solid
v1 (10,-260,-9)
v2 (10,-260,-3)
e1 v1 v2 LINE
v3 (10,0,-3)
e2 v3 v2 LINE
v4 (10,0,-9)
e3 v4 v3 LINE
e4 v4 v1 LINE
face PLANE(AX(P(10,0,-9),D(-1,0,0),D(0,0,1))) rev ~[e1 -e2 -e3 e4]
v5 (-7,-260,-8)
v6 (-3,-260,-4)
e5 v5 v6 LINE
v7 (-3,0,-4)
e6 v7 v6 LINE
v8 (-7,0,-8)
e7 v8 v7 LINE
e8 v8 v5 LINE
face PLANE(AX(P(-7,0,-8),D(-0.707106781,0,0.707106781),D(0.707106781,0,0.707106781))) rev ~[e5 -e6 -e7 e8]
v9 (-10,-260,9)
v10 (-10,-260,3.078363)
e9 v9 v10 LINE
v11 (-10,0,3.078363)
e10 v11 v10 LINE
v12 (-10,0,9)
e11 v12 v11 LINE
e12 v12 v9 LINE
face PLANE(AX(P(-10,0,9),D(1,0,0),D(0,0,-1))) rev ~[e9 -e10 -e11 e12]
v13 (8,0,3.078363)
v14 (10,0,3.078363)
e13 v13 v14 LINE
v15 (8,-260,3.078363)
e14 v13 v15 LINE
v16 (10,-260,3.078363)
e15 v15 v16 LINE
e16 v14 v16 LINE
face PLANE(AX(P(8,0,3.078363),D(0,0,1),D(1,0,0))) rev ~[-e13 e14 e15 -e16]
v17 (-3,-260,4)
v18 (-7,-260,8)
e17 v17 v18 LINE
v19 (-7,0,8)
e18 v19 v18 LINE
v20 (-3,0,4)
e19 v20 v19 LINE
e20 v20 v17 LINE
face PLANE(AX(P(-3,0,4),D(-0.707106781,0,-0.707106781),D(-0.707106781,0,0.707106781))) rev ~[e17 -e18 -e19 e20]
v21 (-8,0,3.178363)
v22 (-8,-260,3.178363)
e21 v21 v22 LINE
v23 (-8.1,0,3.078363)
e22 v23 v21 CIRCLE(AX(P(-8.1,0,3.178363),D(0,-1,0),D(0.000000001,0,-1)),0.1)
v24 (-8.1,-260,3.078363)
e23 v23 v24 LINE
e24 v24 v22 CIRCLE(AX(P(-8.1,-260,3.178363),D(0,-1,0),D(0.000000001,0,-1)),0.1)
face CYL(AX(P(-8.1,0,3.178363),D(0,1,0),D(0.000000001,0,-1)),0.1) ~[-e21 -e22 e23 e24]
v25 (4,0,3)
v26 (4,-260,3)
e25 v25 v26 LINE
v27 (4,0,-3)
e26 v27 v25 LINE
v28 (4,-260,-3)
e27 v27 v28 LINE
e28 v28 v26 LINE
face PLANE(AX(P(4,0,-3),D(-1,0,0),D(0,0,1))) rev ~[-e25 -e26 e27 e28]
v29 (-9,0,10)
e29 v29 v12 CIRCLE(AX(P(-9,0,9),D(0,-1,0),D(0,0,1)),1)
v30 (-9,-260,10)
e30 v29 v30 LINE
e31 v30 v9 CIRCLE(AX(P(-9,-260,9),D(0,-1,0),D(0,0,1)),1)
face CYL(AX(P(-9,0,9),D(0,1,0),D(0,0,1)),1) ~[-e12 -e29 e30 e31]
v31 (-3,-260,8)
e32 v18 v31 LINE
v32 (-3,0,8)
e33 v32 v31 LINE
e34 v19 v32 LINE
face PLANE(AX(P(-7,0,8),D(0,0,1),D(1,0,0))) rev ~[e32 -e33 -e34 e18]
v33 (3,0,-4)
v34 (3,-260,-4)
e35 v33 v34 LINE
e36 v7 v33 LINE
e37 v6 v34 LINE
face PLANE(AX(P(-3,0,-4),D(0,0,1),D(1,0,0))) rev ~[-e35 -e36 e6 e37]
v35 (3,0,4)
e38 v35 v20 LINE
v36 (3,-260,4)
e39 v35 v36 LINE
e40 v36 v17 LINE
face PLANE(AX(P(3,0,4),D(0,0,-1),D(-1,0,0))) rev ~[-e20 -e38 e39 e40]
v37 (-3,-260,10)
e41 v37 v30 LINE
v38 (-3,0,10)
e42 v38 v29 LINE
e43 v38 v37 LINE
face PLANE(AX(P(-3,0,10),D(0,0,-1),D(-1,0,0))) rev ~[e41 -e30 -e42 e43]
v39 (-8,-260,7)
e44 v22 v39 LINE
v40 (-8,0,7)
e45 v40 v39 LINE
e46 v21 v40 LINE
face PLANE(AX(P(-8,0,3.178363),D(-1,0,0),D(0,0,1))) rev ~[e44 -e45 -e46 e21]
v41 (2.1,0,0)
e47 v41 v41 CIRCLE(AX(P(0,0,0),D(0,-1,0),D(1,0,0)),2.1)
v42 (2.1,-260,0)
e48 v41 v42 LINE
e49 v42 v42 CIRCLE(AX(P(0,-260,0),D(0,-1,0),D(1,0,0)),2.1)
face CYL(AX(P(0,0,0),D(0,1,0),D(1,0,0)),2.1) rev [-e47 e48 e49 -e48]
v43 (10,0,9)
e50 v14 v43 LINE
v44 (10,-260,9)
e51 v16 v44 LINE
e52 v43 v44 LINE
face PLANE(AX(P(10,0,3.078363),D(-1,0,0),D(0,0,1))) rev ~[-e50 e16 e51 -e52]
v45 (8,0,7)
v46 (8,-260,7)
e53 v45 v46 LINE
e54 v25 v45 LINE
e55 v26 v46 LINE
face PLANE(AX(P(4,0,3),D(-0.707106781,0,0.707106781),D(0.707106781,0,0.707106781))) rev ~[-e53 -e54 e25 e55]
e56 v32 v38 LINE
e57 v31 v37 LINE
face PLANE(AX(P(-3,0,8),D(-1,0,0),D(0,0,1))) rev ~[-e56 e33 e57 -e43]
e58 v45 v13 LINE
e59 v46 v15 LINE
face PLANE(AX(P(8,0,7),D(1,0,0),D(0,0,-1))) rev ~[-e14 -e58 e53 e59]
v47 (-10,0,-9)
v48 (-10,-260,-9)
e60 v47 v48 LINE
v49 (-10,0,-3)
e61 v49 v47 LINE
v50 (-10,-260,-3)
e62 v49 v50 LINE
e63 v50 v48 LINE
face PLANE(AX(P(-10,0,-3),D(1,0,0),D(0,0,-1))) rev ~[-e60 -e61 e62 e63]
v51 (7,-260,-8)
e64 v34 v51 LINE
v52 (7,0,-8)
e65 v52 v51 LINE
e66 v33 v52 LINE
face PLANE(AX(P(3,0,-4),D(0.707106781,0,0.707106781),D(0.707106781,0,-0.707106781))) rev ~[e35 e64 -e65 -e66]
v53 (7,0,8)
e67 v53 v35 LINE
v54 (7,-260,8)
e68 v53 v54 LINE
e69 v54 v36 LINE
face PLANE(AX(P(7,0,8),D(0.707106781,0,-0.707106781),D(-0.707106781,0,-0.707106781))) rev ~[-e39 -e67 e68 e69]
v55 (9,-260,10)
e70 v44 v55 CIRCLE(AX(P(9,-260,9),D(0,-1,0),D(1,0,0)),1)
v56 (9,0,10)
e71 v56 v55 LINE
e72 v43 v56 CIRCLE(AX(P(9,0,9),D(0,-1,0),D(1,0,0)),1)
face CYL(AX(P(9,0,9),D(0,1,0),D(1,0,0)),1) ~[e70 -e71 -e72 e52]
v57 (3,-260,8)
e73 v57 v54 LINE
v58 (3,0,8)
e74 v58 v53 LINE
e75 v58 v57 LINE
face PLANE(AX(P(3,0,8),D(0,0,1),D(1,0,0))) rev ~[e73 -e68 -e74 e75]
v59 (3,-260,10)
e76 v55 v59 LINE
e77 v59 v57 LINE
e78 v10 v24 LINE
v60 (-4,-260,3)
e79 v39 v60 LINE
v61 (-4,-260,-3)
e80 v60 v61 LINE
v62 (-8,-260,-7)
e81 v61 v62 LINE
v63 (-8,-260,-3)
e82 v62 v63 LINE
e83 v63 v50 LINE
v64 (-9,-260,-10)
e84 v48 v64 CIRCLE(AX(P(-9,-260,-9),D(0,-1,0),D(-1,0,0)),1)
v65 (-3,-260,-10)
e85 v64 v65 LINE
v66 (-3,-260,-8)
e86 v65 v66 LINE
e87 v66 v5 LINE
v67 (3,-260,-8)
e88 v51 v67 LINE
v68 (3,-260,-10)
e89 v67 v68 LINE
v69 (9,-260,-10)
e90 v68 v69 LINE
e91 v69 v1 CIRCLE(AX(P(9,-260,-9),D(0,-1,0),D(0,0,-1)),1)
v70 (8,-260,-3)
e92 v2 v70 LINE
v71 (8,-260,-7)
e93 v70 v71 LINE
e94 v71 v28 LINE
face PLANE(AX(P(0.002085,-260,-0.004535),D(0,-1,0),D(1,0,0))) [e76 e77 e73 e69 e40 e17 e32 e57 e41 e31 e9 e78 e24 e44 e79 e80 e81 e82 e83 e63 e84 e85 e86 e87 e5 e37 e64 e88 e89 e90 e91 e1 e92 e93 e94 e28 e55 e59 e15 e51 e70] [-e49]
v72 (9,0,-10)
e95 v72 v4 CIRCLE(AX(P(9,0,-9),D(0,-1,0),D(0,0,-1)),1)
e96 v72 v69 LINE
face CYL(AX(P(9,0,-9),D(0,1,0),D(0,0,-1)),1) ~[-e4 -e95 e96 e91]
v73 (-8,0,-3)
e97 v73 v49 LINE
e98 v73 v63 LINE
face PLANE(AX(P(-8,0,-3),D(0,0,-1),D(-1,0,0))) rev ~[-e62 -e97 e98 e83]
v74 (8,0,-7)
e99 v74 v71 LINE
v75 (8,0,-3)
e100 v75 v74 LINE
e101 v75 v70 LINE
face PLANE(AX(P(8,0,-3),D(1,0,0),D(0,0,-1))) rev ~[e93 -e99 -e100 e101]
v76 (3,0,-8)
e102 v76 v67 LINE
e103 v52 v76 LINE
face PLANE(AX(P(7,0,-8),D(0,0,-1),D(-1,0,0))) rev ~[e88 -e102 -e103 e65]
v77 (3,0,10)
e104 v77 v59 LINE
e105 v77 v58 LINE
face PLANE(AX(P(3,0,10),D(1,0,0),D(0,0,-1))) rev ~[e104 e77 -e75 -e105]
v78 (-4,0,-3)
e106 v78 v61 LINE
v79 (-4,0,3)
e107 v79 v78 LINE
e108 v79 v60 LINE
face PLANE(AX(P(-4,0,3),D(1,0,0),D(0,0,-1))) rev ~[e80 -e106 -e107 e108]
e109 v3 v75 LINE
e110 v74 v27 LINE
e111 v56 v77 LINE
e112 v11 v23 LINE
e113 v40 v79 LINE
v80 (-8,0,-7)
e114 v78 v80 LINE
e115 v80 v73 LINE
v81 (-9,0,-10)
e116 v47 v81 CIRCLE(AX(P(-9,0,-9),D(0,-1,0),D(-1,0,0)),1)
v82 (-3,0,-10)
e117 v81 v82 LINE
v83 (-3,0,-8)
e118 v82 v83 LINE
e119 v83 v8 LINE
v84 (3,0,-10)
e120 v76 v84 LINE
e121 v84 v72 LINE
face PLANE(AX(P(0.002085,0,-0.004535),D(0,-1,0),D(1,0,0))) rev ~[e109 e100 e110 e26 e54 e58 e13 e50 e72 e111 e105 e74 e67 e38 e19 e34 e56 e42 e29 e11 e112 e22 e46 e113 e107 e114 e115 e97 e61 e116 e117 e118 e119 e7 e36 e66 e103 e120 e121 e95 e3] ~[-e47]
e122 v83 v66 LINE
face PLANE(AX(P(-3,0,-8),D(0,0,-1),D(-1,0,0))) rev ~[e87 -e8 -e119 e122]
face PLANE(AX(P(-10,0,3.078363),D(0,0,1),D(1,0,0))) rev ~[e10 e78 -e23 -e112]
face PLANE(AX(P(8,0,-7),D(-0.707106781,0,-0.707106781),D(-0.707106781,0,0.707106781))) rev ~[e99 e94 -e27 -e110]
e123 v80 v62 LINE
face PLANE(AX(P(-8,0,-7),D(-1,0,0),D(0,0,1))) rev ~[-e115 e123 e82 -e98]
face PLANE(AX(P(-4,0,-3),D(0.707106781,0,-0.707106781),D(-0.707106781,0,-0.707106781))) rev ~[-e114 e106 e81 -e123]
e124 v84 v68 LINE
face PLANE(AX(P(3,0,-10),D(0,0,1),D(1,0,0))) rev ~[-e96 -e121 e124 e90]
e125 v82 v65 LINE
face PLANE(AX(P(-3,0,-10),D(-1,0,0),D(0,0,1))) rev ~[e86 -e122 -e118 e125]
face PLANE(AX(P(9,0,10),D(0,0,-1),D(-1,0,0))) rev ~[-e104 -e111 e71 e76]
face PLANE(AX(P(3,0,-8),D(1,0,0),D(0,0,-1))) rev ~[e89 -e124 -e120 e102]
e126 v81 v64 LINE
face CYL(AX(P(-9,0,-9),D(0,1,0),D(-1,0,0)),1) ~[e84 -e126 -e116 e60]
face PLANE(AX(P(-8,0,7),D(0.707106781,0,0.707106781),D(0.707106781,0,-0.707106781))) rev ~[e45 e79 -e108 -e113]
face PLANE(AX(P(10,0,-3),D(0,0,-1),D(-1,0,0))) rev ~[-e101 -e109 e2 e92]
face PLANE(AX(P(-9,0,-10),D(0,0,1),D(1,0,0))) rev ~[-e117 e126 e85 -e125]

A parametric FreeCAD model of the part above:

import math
import FreeCAD as App
import Part
import Sketcher

V = App.Vector

doc = App.newDocument("Part")
params = doc.addObject("Spreadsheet::Sheet", "Params")
for row, (alias, value) in enumerate([
    ("sketch1_radius", "1 mm"),
    ("sketch1_diameter", "4.2 mm"),
    ("sketch1_radius2", "0.1 mm"),
    ("sketch1_width", "6 mm"),
    ("sketch1_width2", "4 mm"),
    ("pad1_length", "260 mm"),
], start=1):
    params.set(f"A{row}", alias)
    params.set(f"B{row}", "=" + value)
    params.setAlias(f"B{row}", alias)

body = doc.addObject("PartDesign::Body", "Body")

# Sketch on XZ plane
sketch1 = body.newObject("Sketcher::SketchObject", "Sketch")
sketch1.AttachmentSupport = (doc.getObject("XZ_Plane"), [""])
sketch1.MapMode = "FlatFace"
sketch1.addGeometry([
    Part.ArcOfCircle(Part.Circle(V(-9, -9, 0), V(0, 0, 1), 1), math.radians(180), math.radians(270)),  # 0
    Part.LineSegment(V(-9, -10, 0), V(-3, -10, 0)),  # 1
    Part.LineSegment(V(-3, -10, 0), V(-3, -8, 0)),  # 2
    Part.LineSegment(V(-3, -8, 0), V(-7, -8, 0)),  # 3
    Part.LineSegment(V(-7, -8, 0), V(-3, -4, 0)),  # 4
    Part.LineSegment(V(-3, -4, 0), V(3, -4, 0)),  # 5
    Part.LineSegment(V(3, -4, 0), V(7, -8, 0)),  # 6
    Part.LineSegment(V(7, -8, 0), V(3, -8, 0)),  # 7
    Part.LineSegment(V(3, -8, 0), V(3, -10, 0)),  # 8
    Part.LineSegment(V(3, -10, 0), V(9, -10, 0)),  # 9
    Part.ArcOfCircle(Part.Circle(V(9, -9, 0), V(0, 0, 1), 1), math.radians(-90), math.radians(0)),  # 10
    Part.LineSegment(V(10, -9, 0), V(10, -3, 0)),  # 11
    Part.LineSegment(V(10, -3, 0), V(8, -3, 0)),  # 12
    Part.LineSegment(V(8, -3, 0), V(8, -7, 0)),  # 13
    Part.LineSegment(V(8, -7, 0), V(4, -3, 0)),  # 14
    Part.LineSegment(V(4, -3, 0), V(4, 3, 0)),  # 15
    Part.LineSegment(V(4, 3, 0), V(8, 7, 0)),  # 16
    Part.LineSegment(V(8, 7, 0), V(8, 3.08, 0)),  # 17
    Part.LineSegment(V(8, 3.08, 0), V(10, 3.08, 0)),  # 18
    Part.LineSegment(V(10, 3.08, 0), V(10, 9, 0)),  # 19
    Part.ArcOfCircle(Part.Circle(V(9, 9, 0), V(0, 0, 1), 1), math.radians(0), math.radians(90)),  # 20
    Part.LineSegment(V(9, 10, 0), V(3, 10, 0)),  # 21
    Part.LineSegment(V(3, 10, 0), V(3, 8, 0)),  # 22
    Part.LineSegment(V(3, 8, 0), V(7, 8, 0)),  # 23
    Part.LineSegment(V(7, 8, 0), V(3, 4, 0)),  # 24
    Part.LineSegment(V(3, 4, 0), V(-3, 4, 0)),  # 25
    Part.LineSegment(V(-3, 4, 0), V(-7, 8, 0)),  # 26
    Part.LineSegment(V(-7, 8, 0), V(-3, 8, 0)),  # 27
    Part.LineSegment(V(-3, 8, 0), V(-3, 10, 0)),  # 28
    Part.LineSegment(V(-3, 10, 0), V(-9, 10, 0)),  # 29
    Part.ArcOfCircle(Part.Circle(V(-9, 9, 0), V(0, 0, 1), 1), math.radians(90), math.radians(180)),  # 30
    Part.LineSegment(V(-10, 9, 0), V(-10, 3.08, 0)),  # 31
    Part.LineSegment(V(-10, 3.08, 0), V(-8.1, 3.08, 0)),  # 32
    Part.ArcOfCircle(Part.Circle(V(-8.1, 3.18, 0), V(0, 0, 1), 0.1), math.radians(-90), math.radians(0)),  # 33
    Part.LineSegment(V(-8, 3.18, 0), V(-8, 7, 0)),  # 34
    Part.LineSegment(V(-8, 7, 0), V(-4, 3, 0)),  # 35
    Part.LineSegment(V(-4, 3, 0), V(-4, -3, 0)),  # 36
    Part.LineSegment(V(-4, -3, 0), V(-8, -7, 0)),  # 37
    Part.LineSegment(V(-8, -7, 0), V(-8, -3, 0)),  # 38
    Part.LineSegment(V(-8, -3, 0), V(-10, -3, 0)),  # 39
    Part.LineSegment(V(-10, -3, 0), V(-10, -9, 0)),  # 40
    Part.Circle(V(0, 0, 0), V(0, 0, 1), 2.1),  # 41
], False)
sketch1.addConstraint([
    Sketcher.Constraint("Tangent", 0, 2, 1, 1),
    Sketcher.Constraint("Coincident", 1, 2, 2, 1),
    Sketcher.Constraint("Coincident", 2, 2, 3, 1),
    Sketcher.Constraint("Coincident", 3, 2, 4, 1),
    Sketcher.Constraint("Coincident", 4, 2, 5, 1),
    Sketcher.Constraint("Coincident", 5, 2, 6, 1),
    Sketcher.Constraint("Coincident", 6, 2, 7, 1),
    Sketcher.Constraint("Coincident", 7, 2, 8, 1),
    Sketcher.Constraint("Coincident", 8, 2, 9, 1),
    Sketcher.Constraint("Tangent", 9, 2, 10, 1),
    Sketcher.Constraint("Tangent", 10, 2, 11, 1),
    Sketcher.Constraint("Coincident", 11, 2, 12, 1),
    Sketcher.Constraint("Coincident", 12, 2, 13, 1),
    Sketcher.Constraint("Coincident", 13, 2, 14, 1),
    Sketcher.Constraint("Coincident", 14, 2, 15, 1),
    Sketcher.Constraint("Coincident", 15, 2, 16, 1),
    Sketcher.Constraint("Coincident", 16, 2, 17, 1),
    Sketcher.Constraint("Coincident", 17, 2, 18, 1),
    Sketcher.Constraint("Coincident", 18, 2, 19, 1),
    Sketcher.Constraint("Tangent", 19, 2, 20, 1),
    Sketcher.Constraint("Tangent", 20, 2, 21, 1),
    Sketcher.Constraint("Coincident", 21, 2, 22, 1),
    Sketcher.Constraint("Coincident", 22, 2, 23, 1),
    Sketcher.Constraint("Coincident", 23, 2, 24, 1),
    Sketcher.Constraint("Coincident", 24, 2, 25, 1),
    Sketcher.Constraint("Coincident", 25, 2, 26, 1),
    Sketcher.Constraint("Coincident", 26, 2, 27, 1),
    Sketcher.Constraint("Coincident", 27, 2, 28, 1),
    Sketcher.Constraint("Coincident", 28, 2, 29, 1),
    Sketcher.Constraint("Tangent", 29, 2, 30, 1),
    Sketcher.Constraint("Tangent", 30, 2, 31, 1),
    Sketcher.Constraint("Coincident", 31, 2, 32, 1),
    Sketcher.Constraint("Tangent", 32, 2, 33, 1),
    Sketcher.Constraint("Tangent", 33, 2, 34, 1),
    Sketcher.Constraint("Coincident", 34, 2, 35, 1),
    Sketcher.Constraint("Coincident", 35, 2, 36, 1),
    Sketcher.Constraint("Coincident", 36, 2, 37, 1),
    Sketcher.Constraint("Coincident", 37, 2, 38, 1),
    Sketcher.Constraint("Coincident", 38, 2, 39, 1),
    Sketcher.Constraint("Coincident", 39, 2, 40, 1),
    Sketcher.Constraint("Tangent", 40, 2, 0, 1),
    Sketcher.Constraint("Horizontal", 1),
    Sketcher.Constraint("Vertical", 2),
    Sketcher.Constraint("Horizontal", 3),
    Sketcher.Constraint("Horizontal", 5),
    Sketcher.Constraint("Horizontal", 7),
    Sketcher.Constraint("Vertical", 8),
    Sketcher.Constraint("Horizontal", 9),
    Sketcher.Constraint("Vertical", 11),
    Sketcher.Constraint("Horizontal", 12),
    Sketcher.Constraint("Vertical", 13),
    Sketcher.Constraint("Vertical", 15),
    Sketcher.Constraint("Vertical", 17),
    Sketcher.Constraint("Horizontal", 18),
    Sketcher.Constraint("Vertical", 19),
    Sketcher.Constraint("Horizontal", 21),
    Sketcher.Constraint("Vertical", 22),
    Sketcher.Constraint("Horizontal", 23),
    Sketcher.Constraint("Horizontal", 25),
    Sketcher.Constraint("Horizontal", 27),
    Sketcher.Constraint("Vertical", 28),
    Sketcher.Constraint("Horizontal", 29),
    Sketcher.Constraint("Vertical", 31),
    Sketcher.Constraint("Horizontal", 32),
    Sketcher.Constraint("Vertical", 34),
    Sketcher.Constraint("Vertical", 36),
    Sketcher.Constraint("Vertical", 38),
    Sketcher.Constraint("Horizontal", 39),
    Sketcher.Constraint("Vertical", 40),
    Sketcher.Constraint("Coincident", 41, 3, -1, 1),
    Sketcher.Constraint("Equal", 0, 10),
    Sketcher.Constraint("Equal", 10, 20),
    Sketcher.Constraint("Equal", 20, 30),
    Sketcher.Constraint("Symmetric", 0, 3, 20, 3, -1, 1),
    Sketcher.Constraint("Symmetric", 10, 3, 30, 3, -1, 1),
    Sketcher.Constraint("Symmetric", 2, 2, 22, 2, -1, 1),
    Sketcher.Constraint("Symmetric", 4, 2, 24, 2, -1, 1),
    Sketcher.Constraint("Symmetric", 6, 2, 26, 2, -1, 1),
    Sketcher.Constraint("Symmetric", 13, 2, 34, 2, -1, 1),
    Sketcher.Constraint("Symmetric", 14, 2, 35, 2, -1, 1),
    Sketcher.Constraint("Symmetric", 16, 2, 37, 2, -1, 1),
    Sketcher.Constraint("Symmetric", 0, 3, 10, 3, -2),
    Sketcher.Constraint("Symmetric", 3, 2, 6, 2, -2),
    Sketcher.Constraint("Symmetric", 16, 2, 34, 2, -2),
    Sketcher.Constraint("Perpendicular", 4, 6),
    Sketcher.Constraint("Parallel", 6, 14),
    Sketcher.Constraint("Perpendicular", 14, 16),
    Sketcher.Constraint("Parallel", 16, 24),
    Sketcher.Constraint("Perpendicular", 24, 26),
    Sketcher.Constraint("Perpendicular", 35, 37),
    Sketcher.Constraint("Horizontal", 12, 2, 14, 2),
    Sketcher.Constraint("Horizontal", 18, 2, 31, 2),
    Sketcher.Constraint("Horizontal", 15, 2, 35, 2),
    Sketcher.Constraint("Horizontal", 36, 2, 38, 2),
    Sketcher.Constraint("Vertical", 2, 2, 4, 2),
    Sketcher.Constraint("Vertical", 5, 2, 7, 2),
    Sketcher.Constraint("Vertical", 25, 2, 27, 2),
    Sketcher.Constraint("Equal", 1, 5),
    Sketcher.Constraint("Equal", 39, 2),
    Sketcher.Constraint("Equal", 29, 11),
    Sketcher.Constraint("Equal", 27, 13),
    Sketcher.Constraint("Equal", 11, 15),
    Sketcher.Constraint("Radius", 0, 1.0),
    Sketcher.Constraint("Diameter", 41, 4.2),
    Sketcher.Constraint("Radius", 33, 0.1),
    Sketcher.Constraint("DistanceX", 1, 1, 1, 2, 6.0),
    Sketcher.Constraint("DistanceX", 3, 2, 3, 1, 4.0),
    Sketcher.Constraint("DistanceX", 12, 2, 12, 1, 2.0),
    Sketcher.Constraint("DistanceY", 17, 2, 17, 1, 3.921637),
])
sketch1.setExpression("Constraints[102]", "Params.sketch1_radius")
sketch1.setExpression("Constraints[103]", "Params.sketch1_diameter")
sketch1.setExpression("Constraints[104]", "Params.sketch1_radius2")
sketch1.setExpression("Constraints[105]", "Params.sketch1_width")
sketch1.setExpression("Constraints[106]", "Params.sketch1_width2")
pad1 = body.newObject("PartDesign::Pad", "Pad")
pad1.Profile = sketch1
pad1.setExpression("Length", "Params.pad1_length")

doc.recompute()
